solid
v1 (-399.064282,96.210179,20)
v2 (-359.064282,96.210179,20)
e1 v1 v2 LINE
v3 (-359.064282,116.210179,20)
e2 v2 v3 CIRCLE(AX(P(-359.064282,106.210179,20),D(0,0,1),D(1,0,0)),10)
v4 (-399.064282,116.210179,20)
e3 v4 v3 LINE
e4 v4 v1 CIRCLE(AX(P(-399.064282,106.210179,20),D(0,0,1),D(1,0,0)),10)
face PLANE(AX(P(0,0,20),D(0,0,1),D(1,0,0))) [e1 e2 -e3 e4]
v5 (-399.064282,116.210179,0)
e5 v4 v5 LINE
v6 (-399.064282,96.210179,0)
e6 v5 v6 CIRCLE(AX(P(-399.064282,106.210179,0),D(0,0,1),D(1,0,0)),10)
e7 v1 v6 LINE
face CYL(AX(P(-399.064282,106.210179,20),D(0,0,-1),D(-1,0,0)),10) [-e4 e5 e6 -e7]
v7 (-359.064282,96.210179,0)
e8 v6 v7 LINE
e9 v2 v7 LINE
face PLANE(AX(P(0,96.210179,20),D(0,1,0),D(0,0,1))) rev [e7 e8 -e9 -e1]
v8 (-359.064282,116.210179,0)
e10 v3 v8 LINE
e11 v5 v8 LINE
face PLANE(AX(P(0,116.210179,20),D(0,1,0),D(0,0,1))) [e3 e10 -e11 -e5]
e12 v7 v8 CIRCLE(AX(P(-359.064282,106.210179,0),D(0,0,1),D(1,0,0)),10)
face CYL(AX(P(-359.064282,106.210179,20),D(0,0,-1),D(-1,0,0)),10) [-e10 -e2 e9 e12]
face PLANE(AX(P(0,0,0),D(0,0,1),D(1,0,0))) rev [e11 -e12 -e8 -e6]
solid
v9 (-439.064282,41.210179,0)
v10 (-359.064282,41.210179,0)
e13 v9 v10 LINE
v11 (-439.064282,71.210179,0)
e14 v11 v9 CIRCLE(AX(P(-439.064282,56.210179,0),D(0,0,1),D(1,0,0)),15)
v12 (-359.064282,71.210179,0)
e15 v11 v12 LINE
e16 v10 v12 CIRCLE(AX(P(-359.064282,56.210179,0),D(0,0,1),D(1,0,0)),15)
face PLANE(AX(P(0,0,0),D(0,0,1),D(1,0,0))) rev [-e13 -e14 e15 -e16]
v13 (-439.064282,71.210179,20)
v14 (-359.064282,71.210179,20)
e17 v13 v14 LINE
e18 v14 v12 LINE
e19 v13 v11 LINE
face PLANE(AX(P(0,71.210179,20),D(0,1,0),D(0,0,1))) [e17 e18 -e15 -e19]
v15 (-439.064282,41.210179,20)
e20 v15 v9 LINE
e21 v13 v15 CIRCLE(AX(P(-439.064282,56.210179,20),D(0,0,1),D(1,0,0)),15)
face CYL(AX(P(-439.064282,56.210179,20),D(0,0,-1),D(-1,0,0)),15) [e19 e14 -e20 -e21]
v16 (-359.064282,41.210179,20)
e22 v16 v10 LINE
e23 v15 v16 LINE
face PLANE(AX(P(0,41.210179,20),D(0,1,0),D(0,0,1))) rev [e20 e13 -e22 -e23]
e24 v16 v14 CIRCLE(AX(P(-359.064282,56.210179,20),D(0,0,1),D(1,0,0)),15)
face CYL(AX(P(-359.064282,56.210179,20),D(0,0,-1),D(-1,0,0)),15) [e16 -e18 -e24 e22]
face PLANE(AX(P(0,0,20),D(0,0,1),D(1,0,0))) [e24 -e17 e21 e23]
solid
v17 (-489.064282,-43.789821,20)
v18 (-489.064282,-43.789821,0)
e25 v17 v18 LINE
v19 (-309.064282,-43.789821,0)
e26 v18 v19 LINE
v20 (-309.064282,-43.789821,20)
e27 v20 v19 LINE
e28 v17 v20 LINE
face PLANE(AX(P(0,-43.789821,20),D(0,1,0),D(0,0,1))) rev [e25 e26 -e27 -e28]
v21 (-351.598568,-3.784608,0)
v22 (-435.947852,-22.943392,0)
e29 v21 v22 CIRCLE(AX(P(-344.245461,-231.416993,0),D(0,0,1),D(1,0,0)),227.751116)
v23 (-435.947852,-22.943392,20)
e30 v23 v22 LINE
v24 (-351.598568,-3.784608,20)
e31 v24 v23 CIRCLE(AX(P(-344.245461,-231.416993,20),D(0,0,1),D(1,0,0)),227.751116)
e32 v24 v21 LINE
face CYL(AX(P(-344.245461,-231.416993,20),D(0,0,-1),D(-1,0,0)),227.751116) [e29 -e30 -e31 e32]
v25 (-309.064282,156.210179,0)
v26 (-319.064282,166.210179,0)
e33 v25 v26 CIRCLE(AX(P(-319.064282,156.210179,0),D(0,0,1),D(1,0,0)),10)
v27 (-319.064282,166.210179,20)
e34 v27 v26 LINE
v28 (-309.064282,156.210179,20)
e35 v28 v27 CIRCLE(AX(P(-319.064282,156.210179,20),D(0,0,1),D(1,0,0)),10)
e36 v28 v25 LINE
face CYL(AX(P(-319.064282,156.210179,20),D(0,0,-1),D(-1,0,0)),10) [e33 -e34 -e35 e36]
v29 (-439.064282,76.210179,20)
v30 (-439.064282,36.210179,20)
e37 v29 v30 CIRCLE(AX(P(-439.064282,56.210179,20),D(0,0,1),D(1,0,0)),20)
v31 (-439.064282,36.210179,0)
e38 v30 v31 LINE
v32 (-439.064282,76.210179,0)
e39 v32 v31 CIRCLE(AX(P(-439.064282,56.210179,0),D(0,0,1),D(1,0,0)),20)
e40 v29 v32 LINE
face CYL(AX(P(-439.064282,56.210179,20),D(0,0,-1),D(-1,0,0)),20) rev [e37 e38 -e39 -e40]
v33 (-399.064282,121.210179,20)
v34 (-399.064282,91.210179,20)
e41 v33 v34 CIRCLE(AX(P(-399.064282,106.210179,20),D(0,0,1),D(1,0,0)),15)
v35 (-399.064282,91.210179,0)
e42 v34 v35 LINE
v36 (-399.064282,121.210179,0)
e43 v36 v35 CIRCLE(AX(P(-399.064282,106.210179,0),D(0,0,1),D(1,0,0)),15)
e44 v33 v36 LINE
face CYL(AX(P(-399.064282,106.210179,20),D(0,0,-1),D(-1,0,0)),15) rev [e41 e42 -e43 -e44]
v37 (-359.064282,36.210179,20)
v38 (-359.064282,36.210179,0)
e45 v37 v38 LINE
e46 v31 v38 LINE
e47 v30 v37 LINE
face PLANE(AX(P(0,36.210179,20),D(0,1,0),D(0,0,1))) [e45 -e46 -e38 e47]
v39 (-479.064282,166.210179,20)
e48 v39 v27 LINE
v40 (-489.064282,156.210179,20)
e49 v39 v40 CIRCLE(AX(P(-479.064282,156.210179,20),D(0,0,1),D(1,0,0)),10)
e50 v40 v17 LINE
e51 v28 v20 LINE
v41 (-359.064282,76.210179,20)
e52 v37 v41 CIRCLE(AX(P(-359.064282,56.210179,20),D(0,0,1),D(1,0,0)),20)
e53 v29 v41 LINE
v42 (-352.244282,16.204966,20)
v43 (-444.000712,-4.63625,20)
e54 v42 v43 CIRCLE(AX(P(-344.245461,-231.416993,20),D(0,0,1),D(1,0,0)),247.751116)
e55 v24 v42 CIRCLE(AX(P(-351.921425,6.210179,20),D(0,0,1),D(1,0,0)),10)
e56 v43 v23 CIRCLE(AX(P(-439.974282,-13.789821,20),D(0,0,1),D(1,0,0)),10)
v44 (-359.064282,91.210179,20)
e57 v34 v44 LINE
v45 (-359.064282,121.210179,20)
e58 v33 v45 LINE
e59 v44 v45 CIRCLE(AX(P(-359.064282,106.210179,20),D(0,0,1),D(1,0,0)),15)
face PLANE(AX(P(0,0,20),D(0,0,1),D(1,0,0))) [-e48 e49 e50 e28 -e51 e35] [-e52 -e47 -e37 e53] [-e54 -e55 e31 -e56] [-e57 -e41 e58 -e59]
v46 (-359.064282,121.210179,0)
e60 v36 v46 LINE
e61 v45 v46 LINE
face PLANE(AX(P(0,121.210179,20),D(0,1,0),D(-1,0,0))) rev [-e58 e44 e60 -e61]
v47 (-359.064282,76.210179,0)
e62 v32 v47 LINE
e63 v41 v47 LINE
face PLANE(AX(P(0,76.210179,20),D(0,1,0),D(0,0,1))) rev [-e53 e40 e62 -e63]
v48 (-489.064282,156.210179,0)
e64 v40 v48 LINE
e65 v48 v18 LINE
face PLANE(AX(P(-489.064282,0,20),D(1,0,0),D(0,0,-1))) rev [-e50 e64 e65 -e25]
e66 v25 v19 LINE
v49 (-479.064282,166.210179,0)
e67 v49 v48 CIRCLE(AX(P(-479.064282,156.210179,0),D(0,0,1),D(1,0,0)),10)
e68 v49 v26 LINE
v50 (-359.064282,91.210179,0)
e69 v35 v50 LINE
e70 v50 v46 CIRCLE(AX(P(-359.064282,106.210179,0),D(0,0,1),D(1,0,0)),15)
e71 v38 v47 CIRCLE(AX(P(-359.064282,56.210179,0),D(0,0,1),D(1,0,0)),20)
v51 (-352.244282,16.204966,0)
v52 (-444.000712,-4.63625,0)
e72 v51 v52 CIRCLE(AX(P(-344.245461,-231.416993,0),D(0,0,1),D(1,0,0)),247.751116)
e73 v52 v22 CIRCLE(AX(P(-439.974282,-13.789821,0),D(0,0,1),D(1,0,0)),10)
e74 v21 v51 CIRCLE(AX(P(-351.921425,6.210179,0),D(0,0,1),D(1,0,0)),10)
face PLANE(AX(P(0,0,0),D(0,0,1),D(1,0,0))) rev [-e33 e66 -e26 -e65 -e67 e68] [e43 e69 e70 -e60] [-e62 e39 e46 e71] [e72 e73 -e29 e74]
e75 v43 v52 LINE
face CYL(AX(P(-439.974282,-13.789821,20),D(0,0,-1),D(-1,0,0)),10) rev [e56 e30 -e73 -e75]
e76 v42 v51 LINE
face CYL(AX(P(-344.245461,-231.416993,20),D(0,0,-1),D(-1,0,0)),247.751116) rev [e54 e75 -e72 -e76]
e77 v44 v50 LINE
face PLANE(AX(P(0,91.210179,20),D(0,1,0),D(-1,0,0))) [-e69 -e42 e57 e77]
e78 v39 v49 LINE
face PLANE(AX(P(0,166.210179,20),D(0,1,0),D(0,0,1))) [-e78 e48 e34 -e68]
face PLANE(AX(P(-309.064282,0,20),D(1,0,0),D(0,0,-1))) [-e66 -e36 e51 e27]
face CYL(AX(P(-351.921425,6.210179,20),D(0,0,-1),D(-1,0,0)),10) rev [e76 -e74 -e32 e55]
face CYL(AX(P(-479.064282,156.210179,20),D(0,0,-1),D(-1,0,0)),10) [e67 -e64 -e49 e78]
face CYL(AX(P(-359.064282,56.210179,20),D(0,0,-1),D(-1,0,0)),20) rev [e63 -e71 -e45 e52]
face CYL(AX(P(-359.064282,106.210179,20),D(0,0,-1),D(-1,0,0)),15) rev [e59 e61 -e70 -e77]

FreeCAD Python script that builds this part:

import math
import FreeCAD as App
import Part
import Sketcher

doc = App.newDocument("Part")
params = doc.addObject("Spreadsheet::Sheet", "Params")
for row, (alias, value) in enumerate([
    ("sketch1_radius", "10 mm"),
    ("sketch1_radius2", "15 mm"),
    ("sketch1_radius3", "20 mm"),
    ("sketch1_width", "160 mm"),
    ("sketch1_width2", "40 mm"),
    ("pad1_length", "20 mm"),
    ("sketch2_radius", "10 mm"),
    ("sketch2_width", "40 mm"),
    ("pad2_length", "20 mm"),
    ("sketch3_radius", "15 mm"),
    ("sketch3_width", "80 mm"),
    ("pad3_length", "20 mm"),
], start=1):
    params.set(f"A{row}", alias)
    params.set(f"B{row}", "=" + value)
    params.setAlias(f"B{row}", alias)

body = doc.addObject("PartDesign::Body", "Body")

# Sketch on XY plane
sketch1 = body.newObject("Sketcher::SketchObject", "Sketch")
sketch1.AttachmentSupport = (doc.getObject("XY_Plane"), [""])
sketch1.MapMode = "FlatFace"
sketch1.addGeometry(Part.LineSegment(App.Vector(-319, 166, 0), App.Vector(-479, 166, 0)), False)
sketch1.addGeometry(Part.ArcOfCircle(Part.Circle(App.Vector(-479, 156, 0), App.Vector(0, 0, 1), 10), math.radians(90), math.radians(180)), False)
sketch1.addGeometry(Part.LineSegment(App.Vector(-489, 156, 0), App.Vector(-489, -44, 0)), False)
sketch1.addGeometry(Part.LineSegment(App.Vector(-489, -44, 0), App.Vector(-309, -44, 0)), False)
sketch1.addGeometry(Part.LineSegment(App.Vector(-309, -44, 0), App.Vector(-309, 156, 0)), False)
sketch1.addGeometry(Part.ArcOfCircle(Part.Circle(App.Vector(-319, 156, 0), App.Vector(0, 0, 1), 10), math.radians(0), math.radians(90)), False)
sketch1.addGeometry(Part.ArcOfCircle(Part.Circle(App.Vector(-344, -231, 0), App.Vector(0, 0, 1), 248), math.radians(92), math.radians(114)), False)
sketch1.addGeometry(Part.ArcOfCircle(Part.Circle(App.Vector(-352, 6, 0), App.Vector(0, 0, 1), 10), math.radians(-88), math.radians(92)), False)
sketch1.addGeometry(Part.ArcOfCircle(Part.Circle(App.Vector(-344, -231, 0), App.Vector(0, 0, 1), 228), math.radians(92), math.radians(114)), False)
sketch1.addGeometry(Part.ArcOfCircle(Part.Circle(App.Vector(-440, -14, 0), App.Vector(0, 0, 1), 10), math.radians(114), math.radians(294)), False)
sketch1.addGeometry(Part.LineSegment(App.Vector(-359, 91, 0), App.Vector(-399, 91, 0)), False)
sketch1.addGeometry(Part.ArcOfCircle(Part.Circle(App.Vector(-399, 106, 0), App.Vector(0, 0, 1), 15), math.radians(90), math.radians(270)), False)
sketch1.addGeometry(Part.LineSegment(App.Vector(-399, 121, 0), App.Vector(-359, 121, 0)), False)
sketch1.addGeometry(Part.ArcOfCircle(Part.Circle(App.Vector(-359, 106, 0), App.Vector(0, 0, 1), 15), math.radians(-90), math.radians(90)), False)
sketch1.addGeometry(Part.LineSegment(App.Vector(-359, 36, 0), App.Vector(-439, 36, 0)), False)
sketch1.addGeometry(Part.ArcOfCircle(Part.Circle(App.Vector(-439, 56, 0), App.Vector(0, 0, 1), 20), math.radians(90), math.radians(270)), False)
sketch1.addGeometry(Part.LineSegment(App.Vector(-439, 76, 0), App.Vector(-359, 76, 0)), False)
sketch1.addGeometry(Part.ArcOfCircle(Part.Circle(App.Vector(-359, 56, 0), App.Vector(0, 0, 1), 20), math.radians(-90), math.radians(90)), False)
sketch1.addConstraint(Sketcher.Constraint("Tangent", 0, 2, 1, 1))
sketch1.addConstraint(Sketcher.Constraint("Tangent", 1, 2, 2, 1))
sketch1.addConstraint(Sketcher.Constraint("Coincident", 2, 2, 3, 1))
sketch1.addConstraint(Sketcher.Constraint("Coincident", 3, 2, 4, 1))
sketch1.addConstraint(Sketcher.Constraint("Tangent", 4, 2, 5, 1))
sketch1.addConstraint(Sketcher.Constraint("Tangent", 5, 2, 0, 1))
sketch1.addConstraint(Sketcher.Constraint("Tangent", 6, 1, 7, 2))
sketch1.addConstraint(Sketcher.Constraint("Tangent", 7, 1, 8, 1))
sketch1.addConstraint(Sketcher.Constraint("Tangent", 8, 2, 9, 2))
sketch1.addConstraint(Sketcher.Constraint("Tangent", 9, 1, 6, 2))
sketch1.addConstraint(Sketcher.Constraint("Tangent", 10, 2, 11, 2))
sketch1.addConstraint(Sketcher.Constraint("Tangent", 11, 1, 12, 1))
sketch1.addConstraint(Sketcher.Constraint("Tangent", 12, 2, 13, 2))
sketch1.addConstraint(Sketcher.Constraint("Tangent", 13, 1, 10, 1))
sketch1.addConstraint(Sketcher.Constraint("Tangent", 14, 2, 15, 2))
sketch1.addConstraint(Sketcher.Constraint("Tangent", 15, 1, 16, 1))
sketch1.addConstraint(Sketcher.Constraint("Tangent", 16, 2, 17, 2))
sketch1.addConstraint(Sketcher.Constraint("Tangent", 17, 1, 14, 1))
sketch1.addConstraint(Sketcher.Constraint("Horizontal", 0))
sketch1.addConstraint(Sketcher.Constraint("Vertical", 2))
sketch1.addConstraint(Sketcher.Constraint("Horizontal", 3))
sketch1.addConstraint(Sketcher.Constraint("Vertical", 4))
sketch1.addConstraint(Sketcher.Constraint("Horizontal", 10))
sketch1.addConstraint(Sketcher.Constraint("Horizontal", 12))
sketch1.addConstraint(Sketcher.Constraint("Horizontal", 14))
sketch1.addConstraint(Sketcher.Constraint("Horizontal", 16))
sketch1.addConstraint(Sketcher.Constraint("Coincident", 8, 3, 6, 3))
sketch1.addConstraint(Sketcher.Constraint("Equal", 1, 5))
sketch1.addConstraint(Sketcher.Constraint("Equal", 5, 7))
sketch1.addConstraint(Sketcher.Constraint("Vertical", 13, 3, 17, 3))
sketch1.addConstraint(Sketcher.Constraint("Radius", 1, 10.0))
sketch1.addConstraint(Sketcher.Constraint("Radius", 11, 15.0))
sketch1.addConstraint(Sketcher.Constraint("Radius", 15, 20.0))
sketch1.addConstraint(Sketcher.Constraint("DistanceX", 0, 2, 0, 1, 160.0))
sketch1.addConstraint(Sketcher.Constraint("DistanceX", 10, 2, 10, 1, 40.0))
sketch1.addConstraint(Sketcher.Constraint("DistanceX", 14, 2, 14, 1, 80.0))
sketch1.addConstraint(Sketcher.Constraint("DistanceY", 2, 2, 2, 1, 200.0))
sketch1.addConstraint(Sketcher.Constraint("DistanceY", 7, 3, 5, 3, 150.0))
sketch1.addConstraint(Sketcher.Constraint("DistanceY", 9, 3, 7, 3, 20.0))
sketch1.addConstraint(Sketcher.Constraint("DistanceX", 1, 3, 11, 3, 80.0))
sketch1.addConstraint(Sketcher.Constraint("DistanceY", 11, 3, 1, 3, 50.0))
sketch1.addConstraint(Sketcher.Constraint("DistanceY", 15, 3, 11, 3, 50.0))
sketch1.addConstraint(Sketcher.Constraint("DistanceX", 1, 3, 9, 3, 39.09))
sketch1.addConstraint(Sketcher.Constraint("DistanceX", 17, 3, 6, 1, 6.82))
sketch1.addConstraint(Sketcher.Constraint("Radius", 6, 247.751116))
sketch1.addConstraint(Sketcher.Constraint("DistanceY", -1, 1, 1, 3, 156.210179))
sketch1.addConstraint(Sketcher.Constraint("DistanceX", 6, 3, -1, 1, 344.245461))
sketch1.setExpression("Constraints[30]", "Params.sketch1_radius")
sketch1.setExpression("Constraints[31]", "Params.sketch1_radius2")
sketch1.setExpression("Constraints[32]", "Params.sketch1_radius3")
sketch1.setExpression("Constraints[33]", "Params.sketch1_width")
sketch1.setExpression("Constraints[34]", "Params.sketch1_width2")
pad1 = body.newObject("PartDesign::Pad", "Pad")
pad1.Profile = sketch1
pad1.setExpression("Length", "Params.pad1_length")
body2 = doc.addObject("PartDesign::Body", "Body001")

# Sketch on XY plane
sketch2 = body2.newObject("Sketcher::SketchObject", "Sketch001")
sketch2.AttachmentSupport = (doc.getObject("XY_Plane001"), [""])
sketch2.MapMode = "FlatFace"
sketch2.addGeometry(Part.LineSegment(App.Vector(-359, 116, 0), App.Vector(-399, 116, 0)), False)
sketch2.addGeometry(Part.ArcOfCircle(Part.Circle(App.Vector(-399, 106, 0), App.Vector(0, 0, 1), 10), math.radians(90), math.radians(270)), False)
sketch2.addGeometry(Part.LineSegment(App.Vector(-399, 96, 0), App.Vector(-359, 96, 0)), False)
sketch2.addGeometry(Part.ArcOfCircle(Part.Circle(App.Vector(-359, 106, 0), App.Vector(0, 0, 1), 10), math.radians(-90), math.radians(90)), False)
sketch2.addConstraint(Sketcher.Constraint("Tangent", 0, 2, 1, 1))
sketch2.addConstraint(Sketcher.Constraint("Tangent", 1, 2, 2, 1))
sketch2.addConstraint(Sketcher.Constraint("Tangent", 2, 2, 3, 1))
sketch2.addConstraint(Sketcher.Constraint("Tangent", 3, 2, 0, 1))
sketch2.addConstraint(Sketcher.Constraint("Horizontal", 0))
sketch2.addConstraint(Sketcher.Constraint("Horizontal", 2))
sketch2.addConstraint(Sketcher.Constraint("Radius", 1, 10.0))
sketch2.addConstraint(Sketcher.Constraint("DistanceX", 0, 2, 0, 1, 40.0))
sketch2.addConstraint(Sketcher.Constraint("DistanceY", -1, 1, 1, 3, 106.210179))
sketch2.addConstraint(Sketcher.Constraint("DistanceX", 1, 3, -1, 1, 399.064282))
sketch2.setExpression("Constraints[6]", "Params.sketch2_radius")
sketch2.setExpression("Constraints[7]", "Params.sketch2_width")
pad2 = body2.newObject("PartDesign::Pad", "Pad001")
pad2.Profile = sketch2
pad2.setExpression("Length", "Params.pad2_length")
body3 = doc.addObject("PartDesign::Body", "Body002")

# Sketch on XY plane
sketch3 = body3.newObject("Sketcher::SketchObject", "Sketch002")
sketch3.AttachmentSupport = (doc.getObject("XY_Plane002"), [""])
sketch3.MapMode = "FlatFace"
sketch3.addGeometry(Part.LineSegment(App.Vector(-359, 71, 0), App.Vector(-439, 71, 0)), False)
sketch3.addGeometry(Part.ArcOfCircle(Part.Circle(App.Vector(-439, 56, 0), App.Vector(0, 0, 1), 15), math.radians(90), math.radians(270)), False)
sketch3.addGeometry(Part.LineSegment(App.Vector(-439, 41, 0), App.Vector(-359, 41, 0)), False)
sketch3.addGeometry(Part.ArcOfCircle(Part.Circle(App.Vector(-359, 56, 0), App.Vector(0, 0, 1), 15), math.radians(-90), math.radians(90)), False)
sketch3.addConstraint(Sketcher.Constraint("Tangent", 0, 2, 1, 1))
sketch3.addConstraint(Sketcher.Constraint("Tangent", 1, 2, 2, 1))
sketch3.addConstraint(Sketcher.Constraint("Tangent", 2, 2, 3, 1))
sketch3.addConstraint(Sketcher.Constraint("Tangent", 3, 2, 0, 1))
sketch3.addConstraint(Sketcher.Constraint("Horizontal", 0))
sketch3.addConstraint(Sketcher.Constraint("Horizontal", 2))
sketch3.addConstraint(Sketcher.Constraint("Radius", 1, 15.0))
sketch3.addConstraint(Sketcher.Constraint("DistanceX", 0, 2, 0, 1, 80.0))
sketch3.addConstraint(Sketcher.Constraint("DistanceY", -1, 1, 1, 3, 56.210179))
sketch3.addConstraint(Sketcher.Constraint("DistanceX", 1, 3, -1, 1, 439.064282))
sketch3.setExpression("Constraints[6]", "Params.sketch3_radius")
sketch3.setExpression("Constraints[7]", "Params.sketch3_width")
pad3 = body3.newObject("PartDesign::Pad", "Pad002")
pad3.Profile = sketch3
pad3.setExpression("Length", "Params.pad3_length")

doc.recompute()
